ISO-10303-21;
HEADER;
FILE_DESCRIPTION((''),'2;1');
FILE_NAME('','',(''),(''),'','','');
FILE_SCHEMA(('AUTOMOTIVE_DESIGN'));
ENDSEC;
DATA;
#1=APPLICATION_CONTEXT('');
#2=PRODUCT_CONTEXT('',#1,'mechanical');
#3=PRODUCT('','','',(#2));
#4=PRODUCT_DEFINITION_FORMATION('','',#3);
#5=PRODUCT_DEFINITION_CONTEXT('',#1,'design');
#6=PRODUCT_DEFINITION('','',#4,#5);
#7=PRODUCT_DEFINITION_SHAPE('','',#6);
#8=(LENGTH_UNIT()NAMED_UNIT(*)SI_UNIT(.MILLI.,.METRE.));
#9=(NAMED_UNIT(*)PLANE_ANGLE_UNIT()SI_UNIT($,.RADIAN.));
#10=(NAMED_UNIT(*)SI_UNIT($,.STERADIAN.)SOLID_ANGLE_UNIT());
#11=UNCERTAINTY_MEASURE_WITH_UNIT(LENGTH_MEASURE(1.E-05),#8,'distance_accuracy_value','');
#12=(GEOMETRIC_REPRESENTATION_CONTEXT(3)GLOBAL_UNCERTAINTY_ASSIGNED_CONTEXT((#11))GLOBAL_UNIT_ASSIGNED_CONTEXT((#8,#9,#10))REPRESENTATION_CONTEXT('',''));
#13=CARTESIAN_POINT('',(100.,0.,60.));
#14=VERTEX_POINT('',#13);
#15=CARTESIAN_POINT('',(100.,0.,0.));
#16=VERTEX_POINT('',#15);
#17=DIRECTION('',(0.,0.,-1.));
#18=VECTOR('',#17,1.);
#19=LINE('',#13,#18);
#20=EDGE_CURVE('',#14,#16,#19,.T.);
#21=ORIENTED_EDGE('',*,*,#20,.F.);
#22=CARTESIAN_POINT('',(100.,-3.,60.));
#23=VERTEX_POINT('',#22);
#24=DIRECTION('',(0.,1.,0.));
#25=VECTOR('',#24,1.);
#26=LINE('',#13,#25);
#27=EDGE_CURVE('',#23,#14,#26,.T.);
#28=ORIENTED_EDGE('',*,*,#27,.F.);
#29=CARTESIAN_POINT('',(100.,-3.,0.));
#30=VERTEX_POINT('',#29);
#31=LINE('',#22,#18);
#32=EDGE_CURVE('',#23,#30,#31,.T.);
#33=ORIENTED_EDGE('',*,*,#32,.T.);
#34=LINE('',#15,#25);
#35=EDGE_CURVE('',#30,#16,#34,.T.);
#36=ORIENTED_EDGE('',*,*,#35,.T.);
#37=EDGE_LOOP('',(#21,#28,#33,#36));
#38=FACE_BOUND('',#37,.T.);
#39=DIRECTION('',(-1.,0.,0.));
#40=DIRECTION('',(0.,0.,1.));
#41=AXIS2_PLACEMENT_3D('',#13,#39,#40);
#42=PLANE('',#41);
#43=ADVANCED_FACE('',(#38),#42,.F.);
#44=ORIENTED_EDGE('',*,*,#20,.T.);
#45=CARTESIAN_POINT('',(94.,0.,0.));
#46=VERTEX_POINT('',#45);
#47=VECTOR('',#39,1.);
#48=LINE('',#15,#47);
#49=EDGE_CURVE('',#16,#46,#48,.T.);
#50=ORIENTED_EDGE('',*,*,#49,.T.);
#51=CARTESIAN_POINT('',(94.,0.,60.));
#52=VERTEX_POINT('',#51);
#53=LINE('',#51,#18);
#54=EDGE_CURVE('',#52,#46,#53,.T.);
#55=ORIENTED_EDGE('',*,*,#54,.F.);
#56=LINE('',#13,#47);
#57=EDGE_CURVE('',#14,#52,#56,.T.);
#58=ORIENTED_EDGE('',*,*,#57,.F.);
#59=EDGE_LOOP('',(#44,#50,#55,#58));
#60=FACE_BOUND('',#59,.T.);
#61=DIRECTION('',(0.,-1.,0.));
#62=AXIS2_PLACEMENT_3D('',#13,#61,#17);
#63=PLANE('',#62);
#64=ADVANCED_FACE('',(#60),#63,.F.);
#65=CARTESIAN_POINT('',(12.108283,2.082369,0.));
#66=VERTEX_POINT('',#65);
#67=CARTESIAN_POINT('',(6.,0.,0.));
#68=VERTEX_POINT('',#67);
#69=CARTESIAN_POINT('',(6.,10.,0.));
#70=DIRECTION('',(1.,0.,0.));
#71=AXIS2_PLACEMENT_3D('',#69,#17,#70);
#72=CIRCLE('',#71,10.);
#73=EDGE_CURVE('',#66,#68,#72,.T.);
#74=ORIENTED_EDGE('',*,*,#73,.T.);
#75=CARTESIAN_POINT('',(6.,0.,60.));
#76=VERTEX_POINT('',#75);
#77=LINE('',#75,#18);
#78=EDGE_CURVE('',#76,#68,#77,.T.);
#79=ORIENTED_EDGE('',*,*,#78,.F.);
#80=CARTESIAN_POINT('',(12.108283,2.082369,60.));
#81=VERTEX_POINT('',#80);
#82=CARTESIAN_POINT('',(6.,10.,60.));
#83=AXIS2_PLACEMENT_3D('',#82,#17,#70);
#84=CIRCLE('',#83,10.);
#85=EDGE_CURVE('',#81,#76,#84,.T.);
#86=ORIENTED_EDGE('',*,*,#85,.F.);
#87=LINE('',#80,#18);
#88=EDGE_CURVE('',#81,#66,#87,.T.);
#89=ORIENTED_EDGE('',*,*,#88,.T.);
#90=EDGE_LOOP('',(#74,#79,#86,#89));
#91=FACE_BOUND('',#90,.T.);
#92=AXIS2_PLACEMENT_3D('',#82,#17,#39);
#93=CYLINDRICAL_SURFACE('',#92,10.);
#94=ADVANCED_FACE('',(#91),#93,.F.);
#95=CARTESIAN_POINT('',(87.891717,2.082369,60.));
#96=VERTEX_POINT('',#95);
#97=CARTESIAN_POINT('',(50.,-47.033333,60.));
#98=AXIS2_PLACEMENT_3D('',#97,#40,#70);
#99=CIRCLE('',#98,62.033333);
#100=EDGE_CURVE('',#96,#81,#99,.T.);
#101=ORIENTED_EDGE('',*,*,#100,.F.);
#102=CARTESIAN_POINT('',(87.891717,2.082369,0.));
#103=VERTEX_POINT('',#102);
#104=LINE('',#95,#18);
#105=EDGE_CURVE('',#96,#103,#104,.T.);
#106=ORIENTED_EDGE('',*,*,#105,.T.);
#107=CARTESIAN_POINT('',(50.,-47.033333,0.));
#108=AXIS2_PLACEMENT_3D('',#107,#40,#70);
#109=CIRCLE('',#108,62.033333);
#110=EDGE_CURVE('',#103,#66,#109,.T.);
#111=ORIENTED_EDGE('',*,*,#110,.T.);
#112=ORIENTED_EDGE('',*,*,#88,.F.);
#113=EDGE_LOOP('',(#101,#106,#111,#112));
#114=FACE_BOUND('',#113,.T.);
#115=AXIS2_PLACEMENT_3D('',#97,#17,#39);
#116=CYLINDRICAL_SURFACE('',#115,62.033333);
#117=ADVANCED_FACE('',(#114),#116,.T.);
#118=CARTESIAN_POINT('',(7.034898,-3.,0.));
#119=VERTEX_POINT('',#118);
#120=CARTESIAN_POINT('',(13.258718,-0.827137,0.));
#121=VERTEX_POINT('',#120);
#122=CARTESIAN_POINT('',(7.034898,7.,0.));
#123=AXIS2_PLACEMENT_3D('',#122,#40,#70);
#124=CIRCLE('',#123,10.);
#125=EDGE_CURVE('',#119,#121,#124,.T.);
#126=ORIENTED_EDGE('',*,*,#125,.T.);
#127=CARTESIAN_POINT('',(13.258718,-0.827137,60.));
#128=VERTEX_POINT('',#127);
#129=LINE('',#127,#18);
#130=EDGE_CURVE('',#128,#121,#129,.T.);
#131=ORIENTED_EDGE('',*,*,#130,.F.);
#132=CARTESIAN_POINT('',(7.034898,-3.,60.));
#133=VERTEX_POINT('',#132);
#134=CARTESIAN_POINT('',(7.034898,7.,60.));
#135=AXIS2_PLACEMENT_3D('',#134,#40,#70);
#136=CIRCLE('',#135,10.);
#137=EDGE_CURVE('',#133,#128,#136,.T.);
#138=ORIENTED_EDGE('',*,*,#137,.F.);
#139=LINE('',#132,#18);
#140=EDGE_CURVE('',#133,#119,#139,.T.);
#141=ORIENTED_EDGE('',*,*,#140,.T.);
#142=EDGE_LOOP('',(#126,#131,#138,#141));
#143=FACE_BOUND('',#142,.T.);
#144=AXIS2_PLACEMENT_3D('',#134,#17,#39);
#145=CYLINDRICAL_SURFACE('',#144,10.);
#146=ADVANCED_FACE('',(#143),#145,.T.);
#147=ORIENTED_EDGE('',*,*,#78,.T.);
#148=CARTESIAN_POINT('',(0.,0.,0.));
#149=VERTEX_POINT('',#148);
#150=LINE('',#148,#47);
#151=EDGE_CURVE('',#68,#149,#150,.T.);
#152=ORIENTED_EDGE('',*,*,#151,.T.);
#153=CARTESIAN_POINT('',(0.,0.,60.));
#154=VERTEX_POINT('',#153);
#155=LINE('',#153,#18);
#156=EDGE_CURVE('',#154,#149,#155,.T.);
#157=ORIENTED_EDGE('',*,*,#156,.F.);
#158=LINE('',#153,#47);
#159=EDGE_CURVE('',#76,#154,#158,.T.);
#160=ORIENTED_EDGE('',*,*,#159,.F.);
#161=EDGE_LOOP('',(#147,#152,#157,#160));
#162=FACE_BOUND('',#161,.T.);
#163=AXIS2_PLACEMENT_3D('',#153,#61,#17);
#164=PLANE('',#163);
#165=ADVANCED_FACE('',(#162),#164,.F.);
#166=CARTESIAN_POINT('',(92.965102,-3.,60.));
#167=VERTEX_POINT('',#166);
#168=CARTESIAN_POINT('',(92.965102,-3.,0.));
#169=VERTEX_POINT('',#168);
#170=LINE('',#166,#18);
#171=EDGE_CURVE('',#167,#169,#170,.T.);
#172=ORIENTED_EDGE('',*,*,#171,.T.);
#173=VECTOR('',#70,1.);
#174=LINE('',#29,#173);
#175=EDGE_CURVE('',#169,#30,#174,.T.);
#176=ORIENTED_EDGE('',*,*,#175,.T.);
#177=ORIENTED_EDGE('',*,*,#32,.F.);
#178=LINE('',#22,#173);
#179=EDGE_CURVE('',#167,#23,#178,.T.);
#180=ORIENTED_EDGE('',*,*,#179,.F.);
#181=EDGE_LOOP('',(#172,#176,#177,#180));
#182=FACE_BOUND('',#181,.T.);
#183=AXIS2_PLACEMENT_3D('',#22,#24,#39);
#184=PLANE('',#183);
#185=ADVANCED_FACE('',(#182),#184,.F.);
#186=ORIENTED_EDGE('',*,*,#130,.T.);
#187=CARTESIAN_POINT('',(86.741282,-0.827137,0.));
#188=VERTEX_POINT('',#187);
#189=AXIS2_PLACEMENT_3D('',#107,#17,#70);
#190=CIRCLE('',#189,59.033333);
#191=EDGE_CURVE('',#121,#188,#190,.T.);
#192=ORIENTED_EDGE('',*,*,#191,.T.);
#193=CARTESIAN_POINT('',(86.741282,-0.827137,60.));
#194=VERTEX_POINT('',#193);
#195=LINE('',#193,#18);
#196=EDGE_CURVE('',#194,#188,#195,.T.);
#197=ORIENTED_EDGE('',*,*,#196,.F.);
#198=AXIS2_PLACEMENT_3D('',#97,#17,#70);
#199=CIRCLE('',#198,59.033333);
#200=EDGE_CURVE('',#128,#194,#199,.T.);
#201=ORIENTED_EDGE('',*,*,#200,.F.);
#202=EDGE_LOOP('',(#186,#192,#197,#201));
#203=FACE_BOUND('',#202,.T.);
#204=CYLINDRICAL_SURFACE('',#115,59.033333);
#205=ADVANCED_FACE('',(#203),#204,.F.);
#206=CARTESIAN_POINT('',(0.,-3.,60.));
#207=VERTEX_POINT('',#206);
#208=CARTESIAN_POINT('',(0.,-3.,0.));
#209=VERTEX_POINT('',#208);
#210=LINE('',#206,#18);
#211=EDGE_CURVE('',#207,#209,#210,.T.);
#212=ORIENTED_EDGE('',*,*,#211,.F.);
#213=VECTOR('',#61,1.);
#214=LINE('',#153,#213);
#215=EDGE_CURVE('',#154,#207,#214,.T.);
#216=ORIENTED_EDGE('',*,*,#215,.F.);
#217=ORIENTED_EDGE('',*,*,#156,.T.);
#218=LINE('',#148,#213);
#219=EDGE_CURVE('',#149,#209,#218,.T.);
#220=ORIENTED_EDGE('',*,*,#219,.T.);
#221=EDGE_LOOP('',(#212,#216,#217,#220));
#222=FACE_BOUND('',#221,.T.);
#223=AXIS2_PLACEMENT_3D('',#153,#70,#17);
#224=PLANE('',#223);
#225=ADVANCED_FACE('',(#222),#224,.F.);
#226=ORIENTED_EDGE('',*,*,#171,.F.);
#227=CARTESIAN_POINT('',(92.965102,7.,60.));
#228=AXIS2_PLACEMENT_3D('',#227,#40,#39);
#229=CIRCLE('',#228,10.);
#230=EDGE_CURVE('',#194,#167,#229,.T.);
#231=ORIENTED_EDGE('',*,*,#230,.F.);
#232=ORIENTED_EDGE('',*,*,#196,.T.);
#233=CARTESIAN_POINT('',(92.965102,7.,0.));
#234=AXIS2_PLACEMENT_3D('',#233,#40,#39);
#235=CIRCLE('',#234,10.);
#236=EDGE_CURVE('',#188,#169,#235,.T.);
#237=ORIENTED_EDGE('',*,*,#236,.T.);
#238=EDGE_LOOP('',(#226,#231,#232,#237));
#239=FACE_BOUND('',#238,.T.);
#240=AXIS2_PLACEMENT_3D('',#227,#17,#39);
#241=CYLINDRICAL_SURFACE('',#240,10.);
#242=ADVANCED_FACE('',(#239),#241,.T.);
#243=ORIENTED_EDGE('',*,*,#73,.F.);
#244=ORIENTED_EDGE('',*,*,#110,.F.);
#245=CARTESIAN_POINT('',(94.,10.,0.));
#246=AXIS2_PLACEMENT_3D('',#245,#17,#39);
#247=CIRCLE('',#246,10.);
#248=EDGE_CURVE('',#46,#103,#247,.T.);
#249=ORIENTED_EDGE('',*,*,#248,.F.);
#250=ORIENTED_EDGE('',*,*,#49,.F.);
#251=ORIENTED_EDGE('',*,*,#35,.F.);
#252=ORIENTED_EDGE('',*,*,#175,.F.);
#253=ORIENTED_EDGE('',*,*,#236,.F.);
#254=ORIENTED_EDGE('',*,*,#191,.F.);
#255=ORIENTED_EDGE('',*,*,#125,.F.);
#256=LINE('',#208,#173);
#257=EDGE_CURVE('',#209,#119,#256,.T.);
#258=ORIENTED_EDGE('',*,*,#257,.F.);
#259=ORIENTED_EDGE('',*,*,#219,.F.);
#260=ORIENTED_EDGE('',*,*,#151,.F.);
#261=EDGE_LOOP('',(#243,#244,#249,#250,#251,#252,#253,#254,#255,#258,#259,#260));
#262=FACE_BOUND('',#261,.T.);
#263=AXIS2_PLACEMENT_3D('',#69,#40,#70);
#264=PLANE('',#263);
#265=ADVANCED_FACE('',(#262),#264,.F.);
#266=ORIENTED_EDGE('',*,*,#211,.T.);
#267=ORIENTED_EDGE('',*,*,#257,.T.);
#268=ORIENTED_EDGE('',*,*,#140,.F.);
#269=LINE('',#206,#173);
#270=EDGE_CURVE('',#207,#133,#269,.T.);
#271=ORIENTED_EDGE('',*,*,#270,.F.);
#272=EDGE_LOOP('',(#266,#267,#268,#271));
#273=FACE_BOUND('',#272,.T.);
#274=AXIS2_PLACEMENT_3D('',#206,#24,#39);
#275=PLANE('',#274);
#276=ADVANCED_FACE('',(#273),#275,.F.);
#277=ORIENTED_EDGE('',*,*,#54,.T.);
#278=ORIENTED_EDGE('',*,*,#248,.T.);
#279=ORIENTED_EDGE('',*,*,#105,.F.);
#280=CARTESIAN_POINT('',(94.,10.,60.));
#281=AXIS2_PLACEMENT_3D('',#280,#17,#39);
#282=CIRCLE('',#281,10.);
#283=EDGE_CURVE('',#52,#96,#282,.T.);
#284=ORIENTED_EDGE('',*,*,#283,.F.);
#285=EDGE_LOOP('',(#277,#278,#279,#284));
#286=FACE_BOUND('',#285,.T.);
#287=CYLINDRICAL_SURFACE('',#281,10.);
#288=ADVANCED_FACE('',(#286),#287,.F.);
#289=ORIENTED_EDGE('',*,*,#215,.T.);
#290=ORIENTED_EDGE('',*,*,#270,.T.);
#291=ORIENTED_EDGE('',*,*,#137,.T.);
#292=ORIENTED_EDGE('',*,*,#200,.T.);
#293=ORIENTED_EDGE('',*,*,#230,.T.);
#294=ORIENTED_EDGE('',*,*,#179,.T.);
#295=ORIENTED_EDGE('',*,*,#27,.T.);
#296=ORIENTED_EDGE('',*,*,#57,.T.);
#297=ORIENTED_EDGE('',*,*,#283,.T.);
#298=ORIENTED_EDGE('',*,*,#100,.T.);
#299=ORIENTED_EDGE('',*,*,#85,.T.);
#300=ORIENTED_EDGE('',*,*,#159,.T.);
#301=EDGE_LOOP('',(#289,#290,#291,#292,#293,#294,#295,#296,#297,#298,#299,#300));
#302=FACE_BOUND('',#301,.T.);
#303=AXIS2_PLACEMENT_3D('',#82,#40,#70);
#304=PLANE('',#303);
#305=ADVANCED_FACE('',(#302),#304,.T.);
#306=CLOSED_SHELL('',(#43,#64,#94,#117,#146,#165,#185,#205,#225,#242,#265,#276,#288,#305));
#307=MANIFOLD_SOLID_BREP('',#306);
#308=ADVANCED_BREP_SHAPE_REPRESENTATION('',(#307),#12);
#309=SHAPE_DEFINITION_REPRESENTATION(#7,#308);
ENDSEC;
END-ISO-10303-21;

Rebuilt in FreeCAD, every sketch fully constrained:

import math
import FreeCAD as App
import Part
import Sketcher
from FreeCAD import Vector
Q = App.Units.Quantity

doc = App.newDocument("Part")
body = doc.addObject("PartDesign::Body", "Body")

sketch1 = body.newObject("Sketcher::SketchObject", "Sketch")
sketch1.AttachmentSupport = (doc.getObject("XY_Plane"), [""])
sketch1.MapMode = "FlatFace"
sketch1.addGeometry(Part.LineSegment(Vector(0, 0, 0), Vector(0, -3, 0)), False)
sketch1.addGeometry(Part.LineSegment(Vector(0, -3, 0), Vector(7, -3, 0)), False)
sketch1.addGeometry(Part.ArcOfCircle(Part.Circle(Vector(7, 7, 0), Vector(0, 0, 1), 10), math.radians(-90), math.radians(-52)), False)
sketch1.addGeometry(Part.ArcOfCircle(Part.Circle(Vector(50, -47, 0), Vector(0, 0, 1), 59), math.radians(52), math.radians(128)), False)
sketch1.addGeometry(Part.ArcOfCircle(Part.Circle(Vector(93, 7, 0), Vector(0, 0, 1), 10), math.radians(-128), math.radians(-90)), False)
sketch1.addGeometry(Part.LineSegment(Vector(93, -3, 0), Vector(100, -3, 0)), False)
sketch1.addGeometry(Part.LineSegment(Vector(100, -3, 0), Vector(100, 0, 0)), False)
sketch1.addGeometry(Part.LineSegment(Vector(100, 0, 0), Vector(94, 0, 0)), False)
sketch1.addGeometry(Part.ArcOfCircle(Part.Circle(Vector(94, 10, 0), Vector(0, 0, 1), 10), math.radians(-128), math.radians(-90)), False)
sketch1.addGeometry(Part.ArcOfCircle(Part.Circle(Vector(50, -47, 0), Vector(0, 0, 1), 62), math.radians(52), math.radians(128)), False)
sketch1.addGeometry(Part.ArcOfCircle(Part.Circle(Vector(6, 10, 0), Vector(0, 0, 1), 10), math.radians(-90), math.radians(-52)), False)
sketch1.addGeometry(Part.LineSegment(Vector(6, 0, 0), Vector(0, 0, 0)), False)
sketch1.addConstraint(Sketcher.Constraint("Coincident", 0, 2, 1, 1))
sketch1.addConstraint(Sketcher.Constraint("Tangent", 1, 2, 2, 1))
sketch1.addConstraint(Sketcher.Constraint("Tangent", 2, 2, 3, 2))
sketch1.addConstraint(Sketcher.Constraint("Tangent", 3, 1, 4, 1))
sketch1.addConstraint(Sketcher.Constraint("Tangent", 4, 2, 5, 1))
sketch1.addConstraint(Sketcher.Constraint("Coincident", 5, 2, 6, 1))
sketch1.addConstraint(Sketcher.Constraint("Coincident", 6, 2, 7, 1))
sketch1.addConstraint(Sketcher.Constraint("Tangent", 7, 2, 8, 2))
sketch1.addConstraint(Sketcher.Constraint("Tangent", 8, 1, 9, 1))
sketch1.addConstraint(Sketcher.Constraint("Tangent", 9, 2, 10, 2))
sketch1.addConstraint(Sketcher.Constraint("Tangent", 10, 1, 11, 1))
sketch1.addConstraint(Sketcher.Constraint("Coincident", 11, 2, 0, 1))
sketch1.addConstraint(Sketcher.Constraint("Vertical", 0))
sketch1.addConstraint(Sketcher.Constraint("Horizontal", 1))
sketch1.addConstraint(Sketcher.Constraint("Horizontal", 5))
sketch1.addConstraint(Sketcher.Constraint("Vertical", 6))
sketch1.addConstraint(Sketcher.Constraint("Horizontal", 7))
sketch1.addConstraint(Sketcher.Constraint("Horizontal", 11))
sketch1.addConstraint(Sketcher.Constraint("Coincident", 11, 2, -1, 1))
sketch1.addConstraint(Sketcher.Constraint("Coincident", 9, 3, 3, 3))
sketch1.addConstraint(Sketcher.Constraint("Equal", 2, 4))
sketch1.addConstraint(Sketcher.Constraint("Equal", 4, 8))
sketch1.addConstraint(Sketcher.Constraint("Equal", 8, 10))
sketch1.addConstraint(Sketcher.Constraint("PointOnObject", 6, 2, -1))
sketch1.addConstraint(Sketcher.Constraint("Horizontal", 2, 3, 4, 3))
sketch1.addConstraint(Sketcher.Constraint("Equal", 1, 5))
sketch1.addConstraint(Sketcher.Constraint("Radius", 2, Q("10 mm")))
sketch1.addConstraint(Sketcher.Constraint("DistanceX", 7, 2, 7, 1, Q("6 mm")))
sketch1.addConstraint(Sketcher.Constraint("DistanceY", 0, 2, 0, 1, Q("3 mm")))
sketch1.addConstraint(Sketcher.Constraint("DistanceX", -1, 1, 3, 3, Q("50 mm")))
sketch1.addConstraint(Sketcher.Constraint("Radius", 3, Q("59.033333 mm")))
sketch1.addConstraint(Sketcher.Constraint("Radius", 9, Q("62.033333 mm")))
pad1 = body.newObject("PartDesign::Pad", "Pad")
pad1.Profile = sketch1
pad1.Length = 60

doc.recompute()
